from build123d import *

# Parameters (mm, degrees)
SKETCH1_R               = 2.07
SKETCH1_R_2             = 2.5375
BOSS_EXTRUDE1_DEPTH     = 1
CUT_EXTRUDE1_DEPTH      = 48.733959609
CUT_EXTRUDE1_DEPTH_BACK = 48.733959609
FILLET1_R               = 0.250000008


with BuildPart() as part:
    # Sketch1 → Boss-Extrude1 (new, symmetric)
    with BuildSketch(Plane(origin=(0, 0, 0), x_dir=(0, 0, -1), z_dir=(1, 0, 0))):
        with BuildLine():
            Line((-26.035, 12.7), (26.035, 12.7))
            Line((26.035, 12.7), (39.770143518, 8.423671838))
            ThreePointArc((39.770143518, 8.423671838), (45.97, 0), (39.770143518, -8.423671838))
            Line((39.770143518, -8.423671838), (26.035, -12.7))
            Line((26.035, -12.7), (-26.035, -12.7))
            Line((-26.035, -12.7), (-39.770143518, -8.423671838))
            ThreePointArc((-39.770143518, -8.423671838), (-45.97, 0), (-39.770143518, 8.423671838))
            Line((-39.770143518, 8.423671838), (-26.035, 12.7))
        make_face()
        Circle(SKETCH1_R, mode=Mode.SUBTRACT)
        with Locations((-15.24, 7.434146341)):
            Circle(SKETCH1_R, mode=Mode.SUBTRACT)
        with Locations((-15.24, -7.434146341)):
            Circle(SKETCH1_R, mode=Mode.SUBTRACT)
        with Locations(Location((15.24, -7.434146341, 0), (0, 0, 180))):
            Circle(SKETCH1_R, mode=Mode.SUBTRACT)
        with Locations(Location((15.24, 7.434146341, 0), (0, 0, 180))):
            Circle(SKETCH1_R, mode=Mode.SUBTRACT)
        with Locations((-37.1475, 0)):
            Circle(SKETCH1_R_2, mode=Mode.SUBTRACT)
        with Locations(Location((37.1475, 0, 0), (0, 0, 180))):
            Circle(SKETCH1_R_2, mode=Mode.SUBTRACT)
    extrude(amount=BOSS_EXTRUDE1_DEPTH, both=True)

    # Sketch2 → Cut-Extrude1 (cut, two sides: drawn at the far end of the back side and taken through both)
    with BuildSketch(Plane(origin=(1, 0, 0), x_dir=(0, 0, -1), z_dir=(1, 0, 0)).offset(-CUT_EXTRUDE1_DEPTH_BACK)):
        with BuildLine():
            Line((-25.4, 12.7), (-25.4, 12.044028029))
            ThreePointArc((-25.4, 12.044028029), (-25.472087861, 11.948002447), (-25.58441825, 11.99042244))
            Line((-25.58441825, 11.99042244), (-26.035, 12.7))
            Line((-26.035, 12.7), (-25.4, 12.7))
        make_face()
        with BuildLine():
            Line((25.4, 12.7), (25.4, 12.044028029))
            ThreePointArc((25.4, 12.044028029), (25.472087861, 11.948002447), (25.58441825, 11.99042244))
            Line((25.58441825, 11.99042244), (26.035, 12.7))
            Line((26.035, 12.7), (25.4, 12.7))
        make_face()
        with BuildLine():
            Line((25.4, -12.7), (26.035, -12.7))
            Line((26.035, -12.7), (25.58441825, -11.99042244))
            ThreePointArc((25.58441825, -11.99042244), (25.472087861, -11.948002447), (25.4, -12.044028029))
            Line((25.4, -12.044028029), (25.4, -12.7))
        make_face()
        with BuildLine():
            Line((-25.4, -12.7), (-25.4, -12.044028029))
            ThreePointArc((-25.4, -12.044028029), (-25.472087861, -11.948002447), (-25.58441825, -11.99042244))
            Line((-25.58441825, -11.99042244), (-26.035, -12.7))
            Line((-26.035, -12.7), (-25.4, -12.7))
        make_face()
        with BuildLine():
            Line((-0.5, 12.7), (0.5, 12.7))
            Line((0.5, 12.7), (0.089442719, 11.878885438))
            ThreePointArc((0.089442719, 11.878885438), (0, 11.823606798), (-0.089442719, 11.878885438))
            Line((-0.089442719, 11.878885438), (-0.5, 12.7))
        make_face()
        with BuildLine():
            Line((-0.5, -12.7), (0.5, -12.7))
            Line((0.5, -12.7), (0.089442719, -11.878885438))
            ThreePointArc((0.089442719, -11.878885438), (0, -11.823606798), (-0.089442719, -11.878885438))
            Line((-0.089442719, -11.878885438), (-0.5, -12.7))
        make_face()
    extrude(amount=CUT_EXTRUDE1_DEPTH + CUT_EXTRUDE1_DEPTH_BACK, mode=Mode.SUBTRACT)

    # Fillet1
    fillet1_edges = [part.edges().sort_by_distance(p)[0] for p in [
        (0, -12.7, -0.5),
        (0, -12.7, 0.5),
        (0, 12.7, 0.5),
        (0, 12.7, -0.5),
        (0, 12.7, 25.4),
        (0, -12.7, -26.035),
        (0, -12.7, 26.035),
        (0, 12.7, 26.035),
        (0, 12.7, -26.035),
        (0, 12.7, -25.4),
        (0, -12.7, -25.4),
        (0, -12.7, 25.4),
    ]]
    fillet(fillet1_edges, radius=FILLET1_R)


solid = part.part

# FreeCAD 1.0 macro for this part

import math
import FreeCAD as App
import Part
import Sketcher


def edges_at(feature, points):
    """Names of the edges that pass closest to the given points."""
    edges = feature.Shape.Edges
    near = lambda p: min(range(len(edges)), key=lambda i: edges[i].distToShape(Part.Vertex(*p))[0])
    return sorted({f"Edge{near(p) + 1}" for p in points})

doc = App.newDocument("Part")
params = doc.addObject("Spreadsheet::Sheet", "Params")
for row, (alias, value) in enumerate([
    ("sketch1_diameter", "4.14 mm"),
    ("sketch1_height", "52.07 mm"),
    ("pad1_length", "2 mm"),
    ("sketch2_radius", "0.1 mm"),
    ("sketch2_height", "1 mm"),
    ("fillet_radius", "0.25 mm"),
], start=1):
    params.set(f"A{row}", alias)
    params.set(f"B{row}", "=" + value)
    params.setAlias(f"B{row}", alias)

body = doc.addObject("PartDesign::Body", "Body")

# Sketch on YZ plane
sketch1 = body.newObject("Sketcher::SketchObject", "Sketch")
sketch1.AttachmentSupport = (doc.getObject("YZ_Plane"), [""])
sketch1.MapMode = "FlatFace"
sketch1.addGeometry(Part.LineSegment(App.Vector(12.7, -26, 0), App.Vector(12.7, 26, 0)), False)
sketch1.addGeometry(Part.LineSegment(App.Vector(12.7, 26, 0), App.Vector(8.4, 39.8, 0)), False)
sketch1.addGeometry(Part.ArcOfCircle(Part.Circle(App.Vector(0, 37.1, 0), App.Vector(0, 0, 1), 8.8), math.radians(17), math.radians(163)), False)
sketch1.addGeometry(Part.LineSegment(App.Vector(-8.4, 39.8, 0), App.Vector(-12.7, 26, 0)), False)
sketch1.addGeometry(Part.LineSegment(App.Vector(-12.7, 26, 0), App.Vector(-12.7, -26, 0)), False)
sketch1.addGeometry(Part.LineSegment(App.Vector(-12.7, -26, 0), App.Vector(-8.4, -39.8, 0)), False)
sketch1.addGeometry(Part.ArcOfCircle(Part.Circle(App.Vector(0, -37.1, 0), App.Vector(0, 0, 1), 8.8), math.radians(-163), math.radians(-17)), False)
sketch1.addGeometry(Part.LineSegment(App.Vector(8.4, -39.8, 0), App.Vector(12.7, -26, 0)), False)
sketch1.addGeometry(Part.Circle(App.Vector(-7.4, -15.2, 0), App.Vector(0, 0, 1), 2.1), False)
sketch1.addGeometry(Part.Circle(App.Vector(0, -37.1, 0), App.Vector(0, 0, 1), 2.5), False)
sketch1.addGeometry(Part.Circle(App.Vector(-7.4, 15.2, 0), App.Vector(0, 0, 1), 2.1), False)
sketch1.addGeometry(Part.Circle(App.Vector(0, 0, 0), App.Vector(0, 0, 1), 2.1), False)
sketch1.addGeometry(Part.Circle(App.Vector(0, 37.1, 0), App.Vector(0, 0, 1), 2.5), False)
sketch1.addGeometry(Part.Circle(App.Vector(7.4, -15.2, 0), App.Vector(0, 0, 1), 2.1), False)
sketch1.addGeometry(Part.Circle(App.Vector(7.4, 15.2, 0), App.Vector(0, 0, 1), 2.1), False)
sketch1.addConstraint(Sketcher.Constraint("Coincident", 0, 2, 1, 1))
sketch1.addConstraint(Sketcher.Constraint("Tangent", 1, 2, 2, 1))
sketch1.addConstraint(Sketcher.Constraint("Tangent", 2, 2, 3, 1))
sketch1.addConstraint(Sketcher.Constraint("Coincident", 3, 2, 4, 1))
sketch1.addConstraint(Sketcher.Constraint("Coincident", 4, 2, 5, 1))
sketch1.addConstraint(Sketcher.Constraint("Tangent", 5, 2, 6, 1))
sketch1.addConstraint(Sketcher.Constraint("Tangent", 6, 2, 7, 1))
sketch1.addConstraint(Sketcher.Constraint("Coincident", 7, 2, 0, 1))
sketch1.addConstraint(Sketcher.Constraint("Vertical", 0))
sketch1.addConstraint(Sketcher.Constraint("Vertical", 4))
sketch1.addConstraint(Sketcher.Constraint("Coincident", 11, 3, -1, 1))
sketch1.addConstraint(Sketcher.Constraint("Coincident", 9, 3, 6, 3))
sketch1.addConstraint(Sketcher.Constraint("Coincident", 12, 3, 2, 3))
sketch1.addConstraint(Sketcher.Constraint("Equal", 2, 6))
sketch1.addConstraint(Sketcher.Constraint("Equal", 8, 10))
sketch1.addConstraint(Sketcher.Constraint("Equal", 10, 11))
sketch1.addConstraint(Sketcher.Constraint("Equal", 9, 12))
sketch1.addConstraint(Sketcher.Constraint("Equal", 11, 13))
sketch1.addConstraint(Sketcher.Constraint("Equal", 13, 14))
sketch1.addConstraint(Sketcher.Constraint("Symmetric", 2, 3, 6, 3, -1, 1))
sketch1.addConstraint(Sketcher.Constraint("Symmetric", 10, 3, 13, 3, -1, 1))
sketch1.addConstraint(Sketcher.Constraint("Symmetric", 8, 3, 14, 3, -1, 1))
sketch1.addConstraint(Sketcher.Constraint("Symmetric", 0, 2, 4, 2, -1, 1))
sketch1.addConstraint(Sketcher.Constraint("Symmetric", 8, 3, 13, 3, -2))
sketch1.addConstraint(Sketcher.Constraint("Symmetric", 1, 2, 2, 2, -2))
sketch1.addConstraint(Sketcher.Constraint("Parallel", 3, 7))
sketch1.addConstraint(Sketcher.Constraint("Diameter", 8, 4.14))
sketch1.addConstraint(Sketcher.Constraint("Diameter", 9, 5.075))
sketch1.addConstraint(Sketcher.Constraint("DistanceY", 0, 1, 0, 2, 52.07))
sketch1.addConstraint(Sketcher.Constraint("DistanceX", -1, 1, 0, 2, 12.7))
sketch1.addConstraint(Sketcher.Constraint("Radius", 2, 8.8225))
sketch1.addConstraint(Sketcher.Constraint("DistanceY", 8, 3, -1, 1, 15.24))
sketch1.addConstraint(Sketcher.Constraint("DistanceY", 6, 3, 2, 3, 74.295))
sketch1.addConstraint(Sketcher.Constraint("DistanceX", 10, 3, 1, 2, 15.857818))
sketch1.setExpression("Constraints[26]", "Params.sketch1_diameter")
sketch1.setExpression("Constraints[28]", "Params.sketch1_height")
pad1 = body.newObject("PartDesign::Pad", "Pad")
pad1.Profile = sketch1
pad1.setExpression("Length", "Params.pad1_length")
pad1.Midplane = True

# Sketch on YZ plane
sketch2 = body.newObject("Sketcher::SketchObject", "Sketch001")
sketch2.AttachmentSupport = (doc.getObject("YZ_Plane"), [""])
sketch2.MapMode = "FlatFace"
sketch2.AttachmentOffset = App.Placement(App.Vector(0, 0, 1), App.Rotation())
sketch2.addGeometry(Part.LineSegment(App.Vector(12.04, 25.4, 0), App.Vector(12.7, 25.4, 0)), False)
sketch2.addGeometry(Part.LineSegment(App.Vector(12.7, 25.4, 0), App.Vector(12.7, 26.04, 0)), False)
sketch2.addGeometry(Part.LineSegment(App.Vector(12.7, 26.04, 0), App.Vector(11.99, 25.58, 0)), False)
sketch2.addGeometry(Part.ArcOfCircle(Part.Circle(App.Vector(12.04, 25.5, 0), App.Vector(0, 0, 1), 0.1), math.radians(122), math.radians(270)), False)
sketch2.addGeometry(Part.LineSegment(App.Vector(12.7, -25.4, 0), App.Vector(12.04, -25.4, 0)), False)
sketch2.addGeometry(Part.ArcOfCircle(Part.Circle(App.Vector(12.04, -25.5, 0), App.Vector(0, 0, 1), 0.1), math.radians(90), math.radians(238)), False)
sketch2.addGeometry(Part.LineSegment(App.Vector(11.99, -25.58, 0), App.Vector(12.7, -26.04, 0)), False)
sketch2.addGeometry(Part.LineSegment(App.Vector(12.7, -26.04, 0), App.Vector(12.7, -25.4, 0)), False)
sketch2.addGeometry(Part.LineSegment(App.Vector(-12.7, -25.4, 0), App.Vector(-12.7, -26.04, 0)), False)
sketch2.addGeometry(Part.LineSegment(App.Vector(-12.7, -26.04, 0), App.Vector(-11.99, -25.58, 0)), False)
sketch2.addGeometry(Part.ArcOfCircle(Part.Circle(App.Vector(-12.04, -25.5, 0), App.Vector(0, 0, 1), 0.1), math.radians(-58), math.radians(90)), False)
sketch2.addGeometry(Part.LineSegment(App.Vector(-12.04, -25.4, 0), App.Vector(-12.7, -25.4, 0)), False)
sketch2.addGeometry(Part.LineSegment(App.Vector(-12.7, 25.4, 0), App.Vector(-12.04, 25.4, 0)), False)
sketch2.addGeometry(Part.ArcOfCircle(Part.Circle(App.Vector(-12.04, 25.5, 0), App.Vector(0, 0, 1), 0.1), math.radians(-90), math.radians(58)), False)
sketch2.addGeometry(Part.LineSegment(App.Vector(-11.99, 25.58, 0), App.Vector(-12.7, 26.04, 0)), False)
sketch2.addGeometry(Part.LineSegment(App.Vector(-12.7, 26.04, 0), App.Vector(-12.7, 25.4, 0)), False)
sketch2.addGeometry(Part.LineSegment(App.Vector(12.7, -0.5, 0), App.Vector(12.7, 0.5, 0)), False)
sketch2.addGeometry(Part.LineSegment(App.Vector(12.7, 0.5, 0), App.Vector(11.88, 0.09, 0)), False)
sketch2.addGeometry(Part.ArcOfCircle(Part.Circle(App.Vector(11.92, 0, 0), App.Vector(0, 0, 1), 0.1), math.radians(117), math.radians(243)), False)
sketch2.addGeometry(Part.LineSegment(App.Vector(11.88, -0.09, 0), App.Vector(12.7, -0.5, 0)), False)
sketch2.addGeometry(Part.LineSegment(App.Vector(-12.7, 0.5, 0), App.Vector(-12.7, -0.5, 0)), False)
sketch2.addGeometry(Part.LineSegment(App.Vector(-12.7, -0.5, 0), App.Vector(-11.88, -0.09, 0)), False)
sketch2.addGeometry(Part.ArcOfCircle(Part.Circle(App.Vector(-11.92, 0, 0), App.Vector(0, 0, 1), 0.1), math.radians(-63), math.radians(63)), False)
sketch2.addGeometry(Part.LineSegment(App.Vector(-11.88, 0.09, 0), App.Vector(-12.7, 0.5, 0)), False)
sketch2.addConstraint(Sketcher.Constraint("Coincident", 0, 2, 1, 1))
sketch2.addConstraint(Sketcher.Constraint("Coincident", 1, 2, 2, 1))
sketch2.addConstraint(Sketcher.Constraint("Tangent", 2, 2, 3, 1))
sketch2.addConstraint(Sketcher.Constraint("Tangent", 3, 2, 0, 1))
sketch2.addConstraint(Sketcher.Constraint("Tangent", 4, 2, 5, 1))
sketch2.addConstraint(Sketcher.Constraint("Tangent", 5, 2, 6, 1))
sketch2.addConstraint(Sketcher.Constraint("Coincident", 6, 2, 7, 1))
sketch2.addConstraint(Sketcher.Constraint("Coincident", 7, 2, 4, 1))
sketch2.addConstraint(Sketcher.Constraint("Coincident", 8, 2, 9, 1))
sketch2.addConstraint(Sketcher.Constraint("Tangent", 9, 2, 10, 1))
sketch2.addConstraint(Sketcher.Constraint("Tangent", 10, 2, 11, 1))
sketch2.addConstraint(Sketcher.Constraint("Coincident", 11, 2, 8, 1))
sketch2.addConstraint(Sketcher.Constraint("Tangent", 12, 2, 13, 1))
sketch2.addConstraint(Sketcher.Constraint("Tangent", 13, 2, 14, 1))
sketch2.addConstraint(Sketcher.Constraint("Coincident", 14, 2, 15, 1))
sketch2.addConstraint(Sketcher.Constraint("Coincident", 15, 2, 12, 1))
sketch2.addConstraint(Sketcher.Constraint("Coincident", 16, 2, 17, 1))
sketch2.addConstraint(Sketcher.Constraint("Tangent", 17, 2, 18, 1))
sketch2.addConstraint(Sketcher.Constraint("Tangent", 18, 2, 19, 1))
sketch2.addConstraint(Sketcher.Constraint("Coincident", 19, 2, 16, 1))
sketch2.addConstraint(Sketcher.Constraint("Coincident", 20, 2, 21, 1))
sketch2.addConstraint(Sketcher.Constraint("Tangent", 21, 2, 22, 1))
sketch2.addConstraint(Sketcher.Constraint("Tangent", 22, 2, 23, 1))
sketch2.addConstraint(Sketcher.Constraint("Coincident", 23, 2, 20, 1))
sketch2.addConstraint(Sketcher.Constraint("Horizontal", 0))
sketch2.addConstraint(Sketcher.Constraint("Vertical", 1))
sketch2.addConstraint(Sketcher.Constraint("Horizontal", 4))
sketch2.addConstraint(Sketcher.Constraint("Vertical", 7))
sketch2.addConstraint(Sketcher.Constraint("Vertical", 8))
sketch2.addConstraint(Sketcher.Constraint("Horizontal", 11))
sketch2.addConstraint(Sketcher.Constraint("Horizontal", 12))
sketch2.addConstraint(Sketcher.Constraint("Vertical", 15))
sketch2.addConstraint(Sketcher.Constraint("Vertical", 16))
sketch2.addConstraint(Sketcher.Constraint("Vertical", 20))
sketch2.addConstraint(Sketcher.Constraint("Equal", 3, 5))
sketch2.addConstraint(Sketcher.Constraint("Equal", 5, 10))
sketch2.addConstraint(Sketcher.Constraint("Equal", 10, 13))
sketch2.addConstraint(Sketcher.Constraint("Equal", 13, 18))
sketch2.addConstraint(Sketcher.Constraint("Equal", 18, 22))
sketch2.addConstraint(Sketcher.Constraint("Symmetric", 3, 3, 10, 3, -1, 1))
sketch2.addConstraint(Sketcher.Constraint("Symmetric", 5, 3, 13, 3, -1, 1))
sketch2.addConstraint(Sketcher.Constraint("Symmetric", 18, 3, 22, 3, -1, 1))
sketch2.addConstraint(Sketcher.Constraint("Symmetric", 1, 2, 8, 2, -1, 1))
sketch2.addConstraint(Sketcher.Constraint("Symmetric", 6, 2, 14, 2, -1, 1))
sketch2.addConstraint(Sketcher.Constraint("Symmetric", 16, 2, 20, 2, -1, 1))
sketch2.addConstraint(Sketcher.Constraint("Symmetric", 5, 3, 10, 3, -2))
sketch2.addConstraint(Sketcher.Constraint("Symmetric", 6, 2, 8, 2, -2))
sketch2.addConstraint(Sketcher.Constraint("Symmetric", 18, 2, 21, 2, -2))
sketch2.addConstraint(Sketcher.Constraint("Parallel", 19, 23))
sketch2.addConstraint(Sketcher.Constraint("Vertical", 7, 2, 16, 2))
sketch2.addConstraint(Sketcher.Constraint("Radius", 3, 0.1))
sketch2.addConstraint(Sketcher.Constraint("DistanceY", 16, 1, 16, 2, 1.0))
sketch2.addConstraint(Sketcher.Constraint("DistanceY", 5, 3, 3, 3, 51.0))
sketch2.addConstraint(Sketcher.Constraint("DistanceX", -1, 1, 0, 2, 12.7))
sketch2.addConstraint(Sketcher.Constraint("DistanceY", 1, 1, 1, 2, 0.635))
sketch2.addConstraint(Sketcher.Constraint("DistanceX", 0, 1, 0, 2, 0.655972))
sketch2.addConstraint(Sketcher.Constraint("DistanceX", 18, 3, 3, 3, 0.120421))
sketch2.setExpression("Constraints[50]", "Params.sketch2_radius")
sketch2.setExpression("Constraints[51]", "Params.sketch2_height")
pocket1 = body.newObject("PartDesign::Pocket", "Pocket")
pocket1.Profile = sketch2
pocket1.Type = "ThroughAll"
pocket1.Midplane = True
doc.recompute()

fillet = body.newObject("PartDesign::Fillet", "Fillet")
fillet.Base = (pocket1, edges_at(pocket1, [
    (0, -12.7, -0.5),
    (0, -12.7, 0.5),
    (0, 12.7, 0.5),
    (0, 12.7, -0.5),
    (0, 12.7, 25.4),
    (0, -12.7, -26.035),
    (0, -12.7, 26.035),
    (0, 12.7, 26.035),
    (0, 12.7, -26.035),
    (0, 12.7, -25.4),
    (0, -12.7, -25.4),
    (0, -12.7, 25.4),
]))
fillet.setExpression("Radius", "Params.fillet_radius")

doc.recompute()
